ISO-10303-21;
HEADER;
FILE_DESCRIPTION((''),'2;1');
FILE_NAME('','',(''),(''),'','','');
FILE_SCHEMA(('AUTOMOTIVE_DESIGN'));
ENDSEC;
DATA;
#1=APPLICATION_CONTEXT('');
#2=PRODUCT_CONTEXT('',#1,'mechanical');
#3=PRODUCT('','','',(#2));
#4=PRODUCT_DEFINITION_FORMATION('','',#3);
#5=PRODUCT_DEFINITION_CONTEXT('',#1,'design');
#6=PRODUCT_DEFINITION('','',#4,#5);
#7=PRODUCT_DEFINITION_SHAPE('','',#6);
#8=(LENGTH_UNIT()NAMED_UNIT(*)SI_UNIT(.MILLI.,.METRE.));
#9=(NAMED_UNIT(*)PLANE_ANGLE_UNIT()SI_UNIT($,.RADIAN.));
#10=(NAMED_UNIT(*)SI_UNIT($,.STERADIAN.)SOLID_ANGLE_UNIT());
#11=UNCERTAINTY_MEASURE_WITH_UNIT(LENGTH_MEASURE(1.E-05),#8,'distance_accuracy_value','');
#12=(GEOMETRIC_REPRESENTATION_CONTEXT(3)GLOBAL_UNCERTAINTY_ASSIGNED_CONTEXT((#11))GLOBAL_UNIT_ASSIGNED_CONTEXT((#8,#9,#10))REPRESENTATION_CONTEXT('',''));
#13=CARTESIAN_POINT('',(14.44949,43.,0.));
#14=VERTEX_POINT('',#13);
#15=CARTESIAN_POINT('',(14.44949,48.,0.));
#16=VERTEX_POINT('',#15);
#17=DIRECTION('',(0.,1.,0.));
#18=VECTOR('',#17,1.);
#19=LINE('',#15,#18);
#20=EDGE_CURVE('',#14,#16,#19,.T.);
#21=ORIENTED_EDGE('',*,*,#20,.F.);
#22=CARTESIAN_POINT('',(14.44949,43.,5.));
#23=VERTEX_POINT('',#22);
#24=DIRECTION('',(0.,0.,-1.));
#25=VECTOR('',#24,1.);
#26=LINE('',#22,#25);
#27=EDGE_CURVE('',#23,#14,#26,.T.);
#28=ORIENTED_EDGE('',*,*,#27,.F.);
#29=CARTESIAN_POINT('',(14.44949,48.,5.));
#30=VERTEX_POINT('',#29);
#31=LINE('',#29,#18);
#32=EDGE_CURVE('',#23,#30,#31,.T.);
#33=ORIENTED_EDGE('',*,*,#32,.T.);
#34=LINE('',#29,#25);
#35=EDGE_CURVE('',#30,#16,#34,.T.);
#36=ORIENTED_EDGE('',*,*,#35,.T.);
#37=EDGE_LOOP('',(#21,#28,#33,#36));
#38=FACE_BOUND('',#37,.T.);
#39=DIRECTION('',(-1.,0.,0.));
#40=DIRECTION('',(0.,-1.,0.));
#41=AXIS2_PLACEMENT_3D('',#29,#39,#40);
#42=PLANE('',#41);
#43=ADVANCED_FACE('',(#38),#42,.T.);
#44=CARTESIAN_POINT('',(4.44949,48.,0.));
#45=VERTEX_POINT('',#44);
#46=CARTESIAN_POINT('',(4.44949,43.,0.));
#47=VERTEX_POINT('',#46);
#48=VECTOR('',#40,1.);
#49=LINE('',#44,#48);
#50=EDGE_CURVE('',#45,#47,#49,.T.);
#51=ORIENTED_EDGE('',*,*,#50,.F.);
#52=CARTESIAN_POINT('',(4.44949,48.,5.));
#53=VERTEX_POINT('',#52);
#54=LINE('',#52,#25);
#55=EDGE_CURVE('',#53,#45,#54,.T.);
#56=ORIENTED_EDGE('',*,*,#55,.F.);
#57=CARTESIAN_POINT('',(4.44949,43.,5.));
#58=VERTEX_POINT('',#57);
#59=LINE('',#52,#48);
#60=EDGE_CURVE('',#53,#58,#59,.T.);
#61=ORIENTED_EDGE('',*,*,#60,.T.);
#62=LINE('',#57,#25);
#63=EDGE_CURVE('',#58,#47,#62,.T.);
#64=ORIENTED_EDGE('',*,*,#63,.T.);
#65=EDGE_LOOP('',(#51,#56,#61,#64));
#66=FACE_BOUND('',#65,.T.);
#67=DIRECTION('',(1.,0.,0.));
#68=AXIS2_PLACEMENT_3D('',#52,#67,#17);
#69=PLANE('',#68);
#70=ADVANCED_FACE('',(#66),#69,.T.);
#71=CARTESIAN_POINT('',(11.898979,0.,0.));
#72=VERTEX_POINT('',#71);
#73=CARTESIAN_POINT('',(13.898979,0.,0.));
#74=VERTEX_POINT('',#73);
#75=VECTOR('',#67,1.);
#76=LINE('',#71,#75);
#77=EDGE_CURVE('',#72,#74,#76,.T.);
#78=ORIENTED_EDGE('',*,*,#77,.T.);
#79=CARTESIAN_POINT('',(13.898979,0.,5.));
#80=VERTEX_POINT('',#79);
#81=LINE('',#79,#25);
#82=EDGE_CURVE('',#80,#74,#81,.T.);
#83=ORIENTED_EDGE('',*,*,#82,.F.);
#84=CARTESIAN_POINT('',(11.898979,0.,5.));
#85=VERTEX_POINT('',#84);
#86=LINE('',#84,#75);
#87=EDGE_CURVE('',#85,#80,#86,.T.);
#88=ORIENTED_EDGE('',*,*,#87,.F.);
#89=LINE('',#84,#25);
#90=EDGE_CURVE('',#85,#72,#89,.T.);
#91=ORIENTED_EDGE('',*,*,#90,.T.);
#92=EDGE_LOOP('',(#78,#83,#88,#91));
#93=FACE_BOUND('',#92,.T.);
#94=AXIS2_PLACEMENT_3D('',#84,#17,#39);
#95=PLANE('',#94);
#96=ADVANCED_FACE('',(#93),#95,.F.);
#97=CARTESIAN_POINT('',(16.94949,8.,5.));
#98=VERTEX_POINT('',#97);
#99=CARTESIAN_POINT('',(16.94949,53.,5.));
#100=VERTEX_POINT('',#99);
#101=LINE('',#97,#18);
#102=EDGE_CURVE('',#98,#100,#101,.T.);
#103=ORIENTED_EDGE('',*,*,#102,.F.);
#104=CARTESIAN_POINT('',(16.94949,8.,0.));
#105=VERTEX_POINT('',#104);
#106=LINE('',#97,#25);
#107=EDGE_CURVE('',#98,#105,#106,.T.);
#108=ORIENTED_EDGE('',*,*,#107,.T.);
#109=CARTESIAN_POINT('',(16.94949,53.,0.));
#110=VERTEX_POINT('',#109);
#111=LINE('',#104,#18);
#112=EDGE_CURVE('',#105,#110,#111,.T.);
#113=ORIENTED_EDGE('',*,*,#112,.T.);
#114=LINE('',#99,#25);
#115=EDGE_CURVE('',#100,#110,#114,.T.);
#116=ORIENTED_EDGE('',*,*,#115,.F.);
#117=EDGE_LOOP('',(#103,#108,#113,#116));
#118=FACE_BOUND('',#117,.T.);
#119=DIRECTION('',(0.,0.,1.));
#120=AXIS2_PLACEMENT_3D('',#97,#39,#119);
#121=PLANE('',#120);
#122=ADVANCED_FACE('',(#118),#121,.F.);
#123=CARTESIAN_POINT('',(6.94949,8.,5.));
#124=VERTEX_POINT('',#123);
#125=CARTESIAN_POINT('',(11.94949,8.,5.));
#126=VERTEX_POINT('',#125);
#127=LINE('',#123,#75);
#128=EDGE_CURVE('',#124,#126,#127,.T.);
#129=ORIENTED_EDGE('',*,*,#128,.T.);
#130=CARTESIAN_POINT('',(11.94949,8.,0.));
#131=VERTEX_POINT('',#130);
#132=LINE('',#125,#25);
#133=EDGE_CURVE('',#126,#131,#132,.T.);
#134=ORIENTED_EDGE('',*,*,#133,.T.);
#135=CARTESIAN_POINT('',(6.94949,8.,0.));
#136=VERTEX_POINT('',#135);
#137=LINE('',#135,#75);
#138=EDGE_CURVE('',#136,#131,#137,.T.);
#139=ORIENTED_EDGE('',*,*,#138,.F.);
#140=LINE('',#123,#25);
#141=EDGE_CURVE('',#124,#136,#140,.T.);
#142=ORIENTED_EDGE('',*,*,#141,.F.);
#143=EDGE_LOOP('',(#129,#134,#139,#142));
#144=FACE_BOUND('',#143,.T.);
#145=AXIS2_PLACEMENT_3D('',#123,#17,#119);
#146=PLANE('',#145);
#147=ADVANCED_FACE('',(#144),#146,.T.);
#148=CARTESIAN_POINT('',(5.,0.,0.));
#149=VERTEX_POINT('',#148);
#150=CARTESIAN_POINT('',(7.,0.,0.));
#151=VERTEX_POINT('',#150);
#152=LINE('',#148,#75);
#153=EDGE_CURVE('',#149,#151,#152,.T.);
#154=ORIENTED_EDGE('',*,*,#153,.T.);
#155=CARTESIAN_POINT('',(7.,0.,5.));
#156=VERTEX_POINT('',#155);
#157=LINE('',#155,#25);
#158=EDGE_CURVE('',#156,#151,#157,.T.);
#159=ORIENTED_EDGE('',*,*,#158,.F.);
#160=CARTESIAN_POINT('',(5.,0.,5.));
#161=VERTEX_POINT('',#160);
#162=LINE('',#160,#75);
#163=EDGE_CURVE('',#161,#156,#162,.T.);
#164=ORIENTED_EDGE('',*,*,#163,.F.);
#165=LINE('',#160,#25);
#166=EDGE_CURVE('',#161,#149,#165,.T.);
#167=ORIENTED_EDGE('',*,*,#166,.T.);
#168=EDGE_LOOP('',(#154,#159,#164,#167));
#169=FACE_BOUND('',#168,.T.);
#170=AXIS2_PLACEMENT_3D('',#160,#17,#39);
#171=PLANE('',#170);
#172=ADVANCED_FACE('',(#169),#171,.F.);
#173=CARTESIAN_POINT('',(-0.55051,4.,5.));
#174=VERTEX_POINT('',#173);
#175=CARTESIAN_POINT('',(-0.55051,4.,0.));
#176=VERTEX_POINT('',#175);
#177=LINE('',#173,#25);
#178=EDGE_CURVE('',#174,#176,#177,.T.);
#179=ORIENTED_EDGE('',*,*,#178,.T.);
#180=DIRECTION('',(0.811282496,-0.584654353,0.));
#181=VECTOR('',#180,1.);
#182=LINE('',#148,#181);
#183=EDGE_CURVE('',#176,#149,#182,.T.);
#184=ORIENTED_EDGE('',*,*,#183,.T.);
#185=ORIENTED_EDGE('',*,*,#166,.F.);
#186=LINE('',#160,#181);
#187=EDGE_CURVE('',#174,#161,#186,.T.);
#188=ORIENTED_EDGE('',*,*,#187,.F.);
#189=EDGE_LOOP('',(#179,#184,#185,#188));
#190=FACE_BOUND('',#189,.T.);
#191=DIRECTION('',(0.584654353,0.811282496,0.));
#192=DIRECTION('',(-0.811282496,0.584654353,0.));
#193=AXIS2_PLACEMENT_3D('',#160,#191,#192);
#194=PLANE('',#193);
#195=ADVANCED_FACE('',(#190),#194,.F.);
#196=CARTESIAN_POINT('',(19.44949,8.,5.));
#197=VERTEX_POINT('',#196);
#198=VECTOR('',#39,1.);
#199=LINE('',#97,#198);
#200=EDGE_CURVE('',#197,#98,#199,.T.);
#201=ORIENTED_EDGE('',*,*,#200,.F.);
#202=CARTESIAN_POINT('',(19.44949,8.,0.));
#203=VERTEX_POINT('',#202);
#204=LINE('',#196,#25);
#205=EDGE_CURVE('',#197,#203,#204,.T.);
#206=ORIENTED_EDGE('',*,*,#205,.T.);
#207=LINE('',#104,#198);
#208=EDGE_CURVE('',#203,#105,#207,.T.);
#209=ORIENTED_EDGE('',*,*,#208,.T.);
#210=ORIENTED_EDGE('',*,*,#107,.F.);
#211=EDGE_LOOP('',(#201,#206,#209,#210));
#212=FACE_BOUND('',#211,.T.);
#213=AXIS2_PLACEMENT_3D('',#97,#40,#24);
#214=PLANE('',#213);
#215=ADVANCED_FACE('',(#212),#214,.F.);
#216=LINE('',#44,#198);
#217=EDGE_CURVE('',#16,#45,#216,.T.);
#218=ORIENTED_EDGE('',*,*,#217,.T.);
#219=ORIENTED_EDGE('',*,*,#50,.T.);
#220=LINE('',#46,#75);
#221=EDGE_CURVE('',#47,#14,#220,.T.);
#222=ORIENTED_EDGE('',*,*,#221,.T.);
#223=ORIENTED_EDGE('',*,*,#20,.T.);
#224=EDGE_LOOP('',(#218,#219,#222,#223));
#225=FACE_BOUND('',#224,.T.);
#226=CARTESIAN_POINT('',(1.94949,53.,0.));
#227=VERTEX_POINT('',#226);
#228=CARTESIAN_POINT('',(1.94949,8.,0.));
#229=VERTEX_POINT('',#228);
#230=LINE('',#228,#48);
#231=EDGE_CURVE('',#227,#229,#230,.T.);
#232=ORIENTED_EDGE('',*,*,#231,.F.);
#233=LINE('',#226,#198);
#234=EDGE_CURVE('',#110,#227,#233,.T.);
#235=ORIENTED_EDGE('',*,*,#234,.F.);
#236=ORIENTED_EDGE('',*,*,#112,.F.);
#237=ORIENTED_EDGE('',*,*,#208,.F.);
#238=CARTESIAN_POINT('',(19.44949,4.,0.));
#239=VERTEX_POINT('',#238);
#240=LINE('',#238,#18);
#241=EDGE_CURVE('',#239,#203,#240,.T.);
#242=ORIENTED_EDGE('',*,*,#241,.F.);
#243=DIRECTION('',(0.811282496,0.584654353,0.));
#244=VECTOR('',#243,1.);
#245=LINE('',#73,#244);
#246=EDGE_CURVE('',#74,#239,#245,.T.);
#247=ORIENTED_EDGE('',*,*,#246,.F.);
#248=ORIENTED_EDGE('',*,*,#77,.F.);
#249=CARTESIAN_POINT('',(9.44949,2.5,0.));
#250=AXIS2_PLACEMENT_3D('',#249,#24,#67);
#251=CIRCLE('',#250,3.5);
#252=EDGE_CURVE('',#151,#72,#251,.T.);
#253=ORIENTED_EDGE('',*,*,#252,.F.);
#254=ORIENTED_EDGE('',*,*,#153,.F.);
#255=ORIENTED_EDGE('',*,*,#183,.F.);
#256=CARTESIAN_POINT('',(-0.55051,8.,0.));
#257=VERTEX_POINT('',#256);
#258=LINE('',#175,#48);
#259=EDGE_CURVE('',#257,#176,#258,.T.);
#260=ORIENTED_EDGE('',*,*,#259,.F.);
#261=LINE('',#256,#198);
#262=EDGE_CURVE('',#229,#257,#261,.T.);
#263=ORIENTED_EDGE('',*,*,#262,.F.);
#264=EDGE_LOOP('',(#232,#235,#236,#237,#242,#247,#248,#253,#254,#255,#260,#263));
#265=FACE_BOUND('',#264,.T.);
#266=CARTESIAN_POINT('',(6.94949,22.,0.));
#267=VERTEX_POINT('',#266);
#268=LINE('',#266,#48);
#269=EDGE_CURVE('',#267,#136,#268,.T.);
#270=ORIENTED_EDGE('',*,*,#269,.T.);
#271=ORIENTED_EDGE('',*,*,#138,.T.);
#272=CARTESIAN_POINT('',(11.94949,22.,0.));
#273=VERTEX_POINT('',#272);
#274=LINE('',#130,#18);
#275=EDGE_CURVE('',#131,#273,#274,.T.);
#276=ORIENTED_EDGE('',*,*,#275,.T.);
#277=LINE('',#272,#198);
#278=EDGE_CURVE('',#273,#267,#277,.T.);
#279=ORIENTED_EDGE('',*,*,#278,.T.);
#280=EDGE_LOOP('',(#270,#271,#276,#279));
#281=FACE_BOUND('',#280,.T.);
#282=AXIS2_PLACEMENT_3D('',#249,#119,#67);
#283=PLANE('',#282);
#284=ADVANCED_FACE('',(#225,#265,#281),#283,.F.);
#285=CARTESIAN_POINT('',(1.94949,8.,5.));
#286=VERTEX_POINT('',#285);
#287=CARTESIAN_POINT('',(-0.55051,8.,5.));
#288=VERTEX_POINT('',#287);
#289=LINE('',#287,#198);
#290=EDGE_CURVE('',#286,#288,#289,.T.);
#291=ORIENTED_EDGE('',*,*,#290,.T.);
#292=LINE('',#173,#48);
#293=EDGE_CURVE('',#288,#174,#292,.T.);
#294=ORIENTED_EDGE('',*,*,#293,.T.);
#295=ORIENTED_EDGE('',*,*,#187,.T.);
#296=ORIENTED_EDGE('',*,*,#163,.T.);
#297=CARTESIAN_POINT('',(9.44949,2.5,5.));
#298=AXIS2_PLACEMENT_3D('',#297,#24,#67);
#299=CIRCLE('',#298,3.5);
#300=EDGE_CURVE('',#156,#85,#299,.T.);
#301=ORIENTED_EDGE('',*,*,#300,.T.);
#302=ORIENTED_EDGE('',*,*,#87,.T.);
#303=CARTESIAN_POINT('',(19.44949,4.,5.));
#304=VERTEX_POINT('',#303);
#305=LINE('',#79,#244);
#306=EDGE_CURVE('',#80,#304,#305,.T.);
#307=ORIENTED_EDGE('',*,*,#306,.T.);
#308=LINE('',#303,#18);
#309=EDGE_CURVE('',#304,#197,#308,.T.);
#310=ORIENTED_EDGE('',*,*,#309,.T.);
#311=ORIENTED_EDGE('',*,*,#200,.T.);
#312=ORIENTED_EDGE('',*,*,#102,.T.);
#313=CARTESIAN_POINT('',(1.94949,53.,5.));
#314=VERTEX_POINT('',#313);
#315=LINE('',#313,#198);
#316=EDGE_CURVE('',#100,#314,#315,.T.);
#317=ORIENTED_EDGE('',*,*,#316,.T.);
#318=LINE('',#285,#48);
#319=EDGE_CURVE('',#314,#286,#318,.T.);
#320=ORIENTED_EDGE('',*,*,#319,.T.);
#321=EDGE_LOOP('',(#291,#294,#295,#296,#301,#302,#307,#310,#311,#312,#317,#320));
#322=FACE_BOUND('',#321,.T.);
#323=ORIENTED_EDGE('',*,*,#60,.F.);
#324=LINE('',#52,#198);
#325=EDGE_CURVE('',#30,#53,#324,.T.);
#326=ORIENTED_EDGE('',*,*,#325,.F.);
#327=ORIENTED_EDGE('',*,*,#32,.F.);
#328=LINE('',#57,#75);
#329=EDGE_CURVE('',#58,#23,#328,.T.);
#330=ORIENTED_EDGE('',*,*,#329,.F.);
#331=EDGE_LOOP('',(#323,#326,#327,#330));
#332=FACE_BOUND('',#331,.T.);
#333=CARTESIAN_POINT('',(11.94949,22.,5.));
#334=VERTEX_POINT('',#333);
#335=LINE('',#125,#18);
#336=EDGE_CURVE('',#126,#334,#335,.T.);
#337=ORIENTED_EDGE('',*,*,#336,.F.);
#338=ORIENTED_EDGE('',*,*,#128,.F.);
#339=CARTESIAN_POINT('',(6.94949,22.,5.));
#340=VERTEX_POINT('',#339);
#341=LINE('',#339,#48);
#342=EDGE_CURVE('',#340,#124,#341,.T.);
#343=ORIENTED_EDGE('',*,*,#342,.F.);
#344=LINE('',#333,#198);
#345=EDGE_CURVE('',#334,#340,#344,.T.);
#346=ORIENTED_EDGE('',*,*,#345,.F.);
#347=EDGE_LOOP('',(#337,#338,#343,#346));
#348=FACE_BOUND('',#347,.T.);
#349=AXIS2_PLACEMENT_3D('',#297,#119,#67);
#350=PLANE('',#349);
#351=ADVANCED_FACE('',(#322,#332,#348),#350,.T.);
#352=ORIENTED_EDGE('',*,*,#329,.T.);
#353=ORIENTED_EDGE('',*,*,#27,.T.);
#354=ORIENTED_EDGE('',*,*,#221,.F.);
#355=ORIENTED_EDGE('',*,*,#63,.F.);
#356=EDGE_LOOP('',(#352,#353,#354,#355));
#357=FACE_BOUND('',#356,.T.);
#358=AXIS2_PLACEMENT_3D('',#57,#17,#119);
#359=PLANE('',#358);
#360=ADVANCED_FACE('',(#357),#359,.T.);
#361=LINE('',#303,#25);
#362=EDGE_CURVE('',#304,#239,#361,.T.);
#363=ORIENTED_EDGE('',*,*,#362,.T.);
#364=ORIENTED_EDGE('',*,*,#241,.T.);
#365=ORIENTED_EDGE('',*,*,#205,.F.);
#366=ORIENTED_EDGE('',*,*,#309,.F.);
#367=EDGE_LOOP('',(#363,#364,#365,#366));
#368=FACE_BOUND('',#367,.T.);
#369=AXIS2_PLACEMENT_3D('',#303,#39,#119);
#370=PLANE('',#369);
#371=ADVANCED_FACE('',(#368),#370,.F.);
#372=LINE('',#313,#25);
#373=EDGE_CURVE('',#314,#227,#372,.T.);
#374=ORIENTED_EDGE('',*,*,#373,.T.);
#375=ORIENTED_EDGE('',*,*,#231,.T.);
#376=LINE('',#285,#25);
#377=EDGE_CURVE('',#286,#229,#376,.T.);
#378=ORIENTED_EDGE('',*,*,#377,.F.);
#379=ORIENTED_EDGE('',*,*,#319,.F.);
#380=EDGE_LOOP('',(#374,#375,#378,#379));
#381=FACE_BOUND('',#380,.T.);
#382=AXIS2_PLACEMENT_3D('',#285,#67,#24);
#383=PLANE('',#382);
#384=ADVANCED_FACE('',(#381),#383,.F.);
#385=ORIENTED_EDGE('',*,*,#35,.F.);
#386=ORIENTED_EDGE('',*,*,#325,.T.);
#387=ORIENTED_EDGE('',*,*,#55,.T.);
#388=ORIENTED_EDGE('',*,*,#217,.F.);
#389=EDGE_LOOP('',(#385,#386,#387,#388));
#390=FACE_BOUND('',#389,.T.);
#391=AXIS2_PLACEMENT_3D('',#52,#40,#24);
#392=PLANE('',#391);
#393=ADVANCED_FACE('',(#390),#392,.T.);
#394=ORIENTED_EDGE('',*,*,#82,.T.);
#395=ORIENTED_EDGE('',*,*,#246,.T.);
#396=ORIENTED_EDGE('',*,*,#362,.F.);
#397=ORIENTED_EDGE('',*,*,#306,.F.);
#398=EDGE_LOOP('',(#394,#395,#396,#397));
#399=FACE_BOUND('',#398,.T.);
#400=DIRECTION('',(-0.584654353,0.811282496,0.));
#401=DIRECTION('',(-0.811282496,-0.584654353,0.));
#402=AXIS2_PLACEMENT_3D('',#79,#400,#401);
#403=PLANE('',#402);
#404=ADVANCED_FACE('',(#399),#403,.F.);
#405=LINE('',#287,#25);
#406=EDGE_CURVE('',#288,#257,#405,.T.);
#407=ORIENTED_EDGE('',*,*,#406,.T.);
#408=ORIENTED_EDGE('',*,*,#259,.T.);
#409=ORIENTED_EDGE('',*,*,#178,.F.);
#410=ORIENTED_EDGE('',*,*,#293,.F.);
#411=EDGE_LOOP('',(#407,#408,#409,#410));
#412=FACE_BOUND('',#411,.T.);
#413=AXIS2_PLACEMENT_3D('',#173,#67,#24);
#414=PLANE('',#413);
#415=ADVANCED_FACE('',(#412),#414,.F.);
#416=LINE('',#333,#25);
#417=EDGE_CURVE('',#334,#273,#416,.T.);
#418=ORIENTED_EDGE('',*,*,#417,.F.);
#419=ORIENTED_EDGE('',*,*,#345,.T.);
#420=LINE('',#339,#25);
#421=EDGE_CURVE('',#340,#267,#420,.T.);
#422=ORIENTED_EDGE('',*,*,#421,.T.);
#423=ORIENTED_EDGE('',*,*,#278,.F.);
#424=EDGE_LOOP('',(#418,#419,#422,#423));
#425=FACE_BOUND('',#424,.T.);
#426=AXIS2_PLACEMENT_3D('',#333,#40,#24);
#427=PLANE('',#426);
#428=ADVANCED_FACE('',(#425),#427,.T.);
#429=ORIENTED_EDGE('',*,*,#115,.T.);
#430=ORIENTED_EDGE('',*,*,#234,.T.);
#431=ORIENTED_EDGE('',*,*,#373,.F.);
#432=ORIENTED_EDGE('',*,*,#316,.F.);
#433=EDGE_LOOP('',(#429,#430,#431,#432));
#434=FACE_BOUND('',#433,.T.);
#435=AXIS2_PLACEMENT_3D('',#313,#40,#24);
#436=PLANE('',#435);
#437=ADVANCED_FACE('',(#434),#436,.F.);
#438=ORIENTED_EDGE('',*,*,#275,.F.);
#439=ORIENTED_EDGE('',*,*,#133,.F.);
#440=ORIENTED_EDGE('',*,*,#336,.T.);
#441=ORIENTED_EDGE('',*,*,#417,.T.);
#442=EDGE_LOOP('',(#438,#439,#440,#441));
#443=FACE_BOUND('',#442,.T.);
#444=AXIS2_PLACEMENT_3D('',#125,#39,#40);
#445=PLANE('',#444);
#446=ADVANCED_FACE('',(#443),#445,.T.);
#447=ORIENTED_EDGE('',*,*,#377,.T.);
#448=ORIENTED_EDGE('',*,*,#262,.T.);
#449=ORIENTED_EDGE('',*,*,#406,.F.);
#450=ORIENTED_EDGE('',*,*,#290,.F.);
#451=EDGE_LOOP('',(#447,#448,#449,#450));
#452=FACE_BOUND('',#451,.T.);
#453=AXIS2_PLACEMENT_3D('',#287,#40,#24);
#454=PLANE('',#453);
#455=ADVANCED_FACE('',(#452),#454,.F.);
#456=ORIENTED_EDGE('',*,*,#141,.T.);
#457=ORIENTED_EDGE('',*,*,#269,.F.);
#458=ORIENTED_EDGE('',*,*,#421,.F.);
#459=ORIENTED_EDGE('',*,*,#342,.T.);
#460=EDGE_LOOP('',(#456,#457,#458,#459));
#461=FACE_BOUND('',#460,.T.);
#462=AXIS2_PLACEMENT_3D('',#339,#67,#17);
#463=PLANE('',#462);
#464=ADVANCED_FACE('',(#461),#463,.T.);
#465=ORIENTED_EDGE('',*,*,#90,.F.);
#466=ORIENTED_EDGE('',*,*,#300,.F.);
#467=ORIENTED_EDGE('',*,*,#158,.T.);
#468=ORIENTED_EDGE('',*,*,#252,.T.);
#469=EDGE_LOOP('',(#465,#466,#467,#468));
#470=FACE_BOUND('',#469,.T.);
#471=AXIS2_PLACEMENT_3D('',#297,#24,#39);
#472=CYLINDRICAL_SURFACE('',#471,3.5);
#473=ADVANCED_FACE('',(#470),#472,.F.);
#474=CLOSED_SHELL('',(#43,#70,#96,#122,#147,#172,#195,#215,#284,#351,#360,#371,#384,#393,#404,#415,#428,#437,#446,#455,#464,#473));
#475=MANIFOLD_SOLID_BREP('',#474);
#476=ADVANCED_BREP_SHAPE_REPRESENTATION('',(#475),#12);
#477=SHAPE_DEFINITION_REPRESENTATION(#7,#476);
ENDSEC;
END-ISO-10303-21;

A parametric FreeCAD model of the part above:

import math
import FreeCAD as App
import Part
import Sketcher

V = App.Vector
Q = App.Units.Quantity


def add_polygon(sketch, points):
    """Adds a closed chain of lines whose ends are joined by coincident constraints."""
    first, n = sketch.GeometryCount, len(points)
    for a, b in zip(points, points[1:] + points[:1]):
        sketch.addGeometry(Part.LineSegment(App.Vector(*a, 0), App.Vector(*b, 0)), False)
    for i in range(n):
        sketch.addConstraint(Sketcher.Constraint("Coincident", first + i, 2, first + (i + 1) % n, 1))

doc = App.newDocument("Part")
body = doc.addObject("PartDesign::Body", "Body")

# Sketch on XY plane
sketch1 = body.newObject("Sketcher::SketchObject", "Sketch")
sketch1.AttachmentSupport = (doc.getObject("XY_Plane"), [""])
sketch1.MapMode = "FlatFace"
sketch1.addGeometry(Part.LineSegment(V(19.4, 8, 0), V(16.9, 8, 0)), False)  # 0
sketch1.addGeometry(Part.LineSegment(V(16.9, 8, 0), V(16.9, 53, 0)), False)  # 1
sketch1.addGeometry(Part.LineSegment(V(16.9, 53, 0), V(1.9, 53, 0)), False)  # 2
sketch1.addGeometry(Part.LineSegment(V(1.9, 53, 0), V(1.9, 8, 0)), False)  # 3
sketch1.addGeometry(Part.LineSegment(V(1.9, 8, 0), V(-0.6, 8, 0)), False)  # 4
sketch1.addGeometry(Part.LineSegment(V(-0.6, 8, 0), V(-0.6, 4, 0)), False)  # 5
sketch1.addGeometry(Part.LineSegment(V(-0.6, 4, 0), V(5, 0, 0)), False)  # 6
sketch1.addGeometry(Part.LineSegment(V(5, 0, 0), V(7, 0, 0)), False)  # 7
sketch1.addGeometry(Part.ArcOfCircle(Part.Circle(V(9.4, 2.5, 0), V(0, 0, 1), 3.5), math.radians(-46), math.radians(226)), False)  # 8
sketch1.addGeometry(Part.LineSegment(V(11.9, 0, 0), V(13.9, 0, 0)), False)  # 9
sketch1.addGeometry(Part.LineSegment(V(13.9, 0, 0), V(19.4, 4, 0)), False)  # 10
sketch1.addGeometry(Part.LineSegment(V(19.4, 4, 0), V(19.4, 8, 0)), False)  # 11
add_polygon(sketch1, [(6.9, 8), (6.9, 22), (11.9, 22), (11.9, 8)])  # lines 12-15
add_polygon(sketch1, [(4.4, 43), (4.4, 48), (14.4, 48), (14.4, 43)])  # lines 16-19
sketch1.addConstraint([
    Sketcher.Constraint("Coincident", 0, 2, 1, 1),
    Sketcher.Constraint("Coincident", 1, 2, 2, 1),
    Sketcher.Constraint("Coincident", 2, 2, 3, 1),
    Sketcher.Constraint("Coincident", 3, 2, 4, 1),
    Sketcher.Constraint("Coincident", 4, 2, 5, 1),
    Sketcher.Constraint("Coincident", 5, 2, 6, 1),
    Sketcher.Constraint("Coincident", 6, 2, 7, 1),
    Sketcher.Constraint("Coincident", 7, 2, 8, 2),
    Sketcher.Constraint("Coincident", 8, 1, 9, 1),
    Sketcher.Constraint("Coincident", 9, 2, 10, 1),
    Sketcher.Constraint("Coincident", 10, 2, 11, 1),
    Sketcher.Constraint("Coincident", 11, 2, 0, 1),
    Sketcher.Constraint("Horizontal", 0),
    Sketcher.Constraint("Vertical", 1),
    Sketcher.Constraint("Horizontal", 2),
    Sketcher.Constraint("Vertical", 3),
    Sketcher.Constraint("Horizontal", 4),
    Sketcher.Constraint("Vertical", 5),
    Sketcher.Constraint("Horizontal", 7),
    Sketcher.Constraint("Horizontal", 9),
    Sketcher.Constraint("Vertical", 11),
    Sketcher.Constraint("Vertical", 12),
    Sketcher.Constraint("Horizontal", 13),
    Sketcher.Constraint("Vertical", 14),
    Sketcher.Constraint("Horizontal", 15),
    Sketcher.Constraint("Vertical", 16),
    Sketcher.Constraint("Horizontal", 17),
    Sketcher.Constraint("Vertical", 18),
    Sketcher.Constraint("Horizontal", 19),
    Sketcher.Constraint("PointOnObject", 6, 2, -1),
    Sketcher.Constraint("PointOnObject", 8, 1, -1),
    Sketcher.Constraint("Horizontal", 0, 2, 3, 2),
    Sketcher.Constraint("Horizontal", 5, 2, 10, 2),
    Sketcher.Constraint("Horizontal", 11, 2, 14, 2),
    Sketcher.Constraint("Equal", 0, 4),
    Sketcher.Constraint("Equal", 7, 9),
    Sketcher.Constraint("Equal", 15, 16),
    Sketcher.Constraint("Equal", 6, 10),
    Sketcher.Constraint("Radius", 8, Q("3.5 mm")),
    Sketcher.Constraint("DistanceX", 2, 2, 2, 1, Q("15 mm")),
    Sketcher.Constraint("DistanceX", 7, 1, 7, 2, Q("2 mm")),
    Sketcher.Constraint("DistanceX", 13, 1, 13, 2, Q("5 mm")),
    Sketcher.Constraint("DistanceX", 17, 1, 17, 2, Q("10 mm")),
    Sketcher.Constraint("DistanceY", 1, 1, 1, 2, Q("45 mm")),
    Sketcher.Constraint("DistanceY", 5, 2, 5, 1, Q("4 mm")),
    Sketcher.Constraint("DistanceY", 12, 1, 12, 2, Q("14 mm")),
    Sketcher.Constraint("DistanceX", 0, 2, 0, 1, Q("2.5 mm")),
    Sketcher.Constraint("DistanceY", -1, 1, 0, 2, Q("8 mm")),
    Sketcher.Constraint("DistanceX", -1, 1, 6, 2, Q("5 mm")),
    Sketcher.Constraint("DistanceY", -1, 1, 16, 2, Q("48 mm")),
    Sketcher.Constraint("DistanceX", 3, 2, 12, 2, Q("5 mm")),
    Sketcher.Constraint("DistanceY", -1, 1, 8, 3, Q("2.5 mm")),
    Sketcher.Constraint("DistanceX", 2, 2, 16, 2, Q("2.5 mm")),
])
pad1 = body.newObject("PartDesign::Pad", "Pad")
pad1.Profile = sketch1
pad1.Length = 5

doc.recompute()
